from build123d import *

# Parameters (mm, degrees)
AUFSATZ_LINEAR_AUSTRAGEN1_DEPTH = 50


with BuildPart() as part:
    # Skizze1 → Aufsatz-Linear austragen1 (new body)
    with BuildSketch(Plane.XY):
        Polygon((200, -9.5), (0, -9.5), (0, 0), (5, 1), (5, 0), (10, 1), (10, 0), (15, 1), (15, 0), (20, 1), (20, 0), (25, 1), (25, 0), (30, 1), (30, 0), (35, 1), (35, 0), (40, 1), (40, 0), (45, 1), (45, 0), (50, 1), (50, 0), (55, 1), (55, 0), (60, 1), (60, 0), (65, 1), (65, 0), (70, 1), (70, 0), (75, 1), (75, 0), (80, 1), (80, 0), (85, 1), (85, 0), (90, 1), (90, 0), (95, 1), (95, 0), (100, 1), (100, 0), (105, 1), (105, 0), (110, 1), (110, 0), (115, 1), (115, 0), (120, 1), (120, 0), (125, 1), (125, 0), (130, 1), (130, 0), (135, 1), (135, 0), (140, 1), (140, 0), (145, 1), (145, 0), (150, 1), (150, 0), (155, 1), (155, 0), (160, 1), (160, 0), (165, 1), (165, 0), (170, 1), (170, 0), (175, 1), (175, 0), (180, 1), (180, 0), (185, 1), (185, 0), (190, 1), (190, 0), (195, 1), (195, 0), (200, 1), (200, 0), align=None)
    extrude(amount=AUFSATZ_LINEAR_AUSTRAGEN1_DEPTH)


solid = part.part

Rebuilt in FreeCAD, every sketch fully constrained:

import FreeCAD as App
import Part
import Sketcher

V = App.Vector
Q = App.Units.Quantity

doc = App.newDocument("Part")
body = doc.addObject("PartDesign::Body", "Body")

# Sketch on XY plane
sketch1 = body.newObject("Sketcher::SketchObject", "Sketch")
sketch1.AttachmentSupport = (doc.getObject("XY_Plane"), [""])
sketch1.MapMode = "FlatFace"
sketch1.addGeometry([
    Part.LineSegment(V(0, -9.5, 0), V(200, -9.5, 0)),  # 0
    Part.LineSegment(V(200, -9.5, 0), V(200, 1, 0)),  # 1
    Part.LineSegment(V(200, 1, 0), V(195, 0, 0)),  # 2
    Part.LineSegment(V(195, 0, 0), V(195, 1, 0)),  # 3
    Part.LineSegment(V(195, 1, 0), V(190, 0, 0)),  # 4
    Part.LineSegment(V(190, 0, 0), V(190, 1, 0)),  # 5
    Part.LineSegment(V(190, 1, 0), V(185, 0, 0)),  # 6
    Part.LineSegment(V(185, 0, 0), V(185, 1, 0)),  # 7
    Part.LineSegment(V(185, 1, 0), V(180, 0, 0)),  # 8
    Part.LineSegment(V(180, 0, 0), V(180, 1, 0)),  # 9
    Part.LineSegment(V(180, 1, 0), V(175, 0, 0)),  # 10
    Part.LineSegment(V(175, 0, 0), V(175, 1, 0)),  # 11
    Part.LineSegment(V(175, 1, 0), V(170, 0, 0)),  # 12
    Part.LineSegment(V(170, 0, 0), V(170, 1, 0)),  # 13
    Part.LineSegment(V(170, 1, 0), V(165, 0, 0)),  # 14
    Part.LineSegment(V(165, 0, 0), V(165, 1, 0)),  # 15
    Part.LineSegment(V(165, 1, 0), V(160, 0, 0)),  # 16
    Part.LineSegment(V(160, 0, 0), V(160, 1, 0)),  # 17
    Part.LineSegment(V(160, 1, 0), V(155, 0, 0)),  # 18
    Part.LineSegment(V(155, 0, 0), V(155, 1, 0)),  # 19
    Part.LineSegment(V(155, 1, 0), V(150, 0, 0)),  # 20
    Part.LineSegment(V(150, 0, 0), V(150, 1, 0)),  # 21
    Part.LineSegment(V(150, 1, 0), V(145, 0, 0)),  # 22
    Part.LineSegment(V(145, 0, 0), V(145, 1, 0)),  # 23
    Part.LineSegment(V(145, 1, 0), V(140, 0, 0)),  # 24
    Part.LineSegment(V(140, 0, 0), V(140, 1, 0)),  # 25
    Part.LineSegment(V(140, 1, 0), V(135, 0, 0)),  # 26
    Part.LineSegment(V(135, 0, 0), V(135, 1, 0)),  # 27
    Part.LineSegment(V(135, 1, 0), V(130, 0, 0)),  # 28
    Part.LineSegment(V(130, 0, 0), V(130, 1, 0)),  # 29
    Part.LineSegment(V(130, 1, 0), V(125, 0, 0)),  # 30
    Part.LineSegment(V(125, 0, 0), V(125, 1, 0)),  # 31
    Part.LineSegment(V(125, 1, 0), V(120, 0, 0)),  # 32
    Part.LineSegment(V(120, 0, 0), V(120, 1, 0)),  # 33
    Part.LineSegment(V(120, 1, 0), V(115, 0, 0)),  # 34
    Part.LineSegment(V(115, 0, 0), V(115, 1, 0)),  # 35
    Part.LineSegment(V(115, 1, 0), V(110, 0, 0)),  # 36
    Part.LineSegment(V(110, 0, 0), V(110, 1, 0)),  # 37
    Part.LineSegment(V(110, 1, 0), V(105, 0, 0)),  # 38
    Part.LineSegment(V(105, 0, 0), V(105, 1, 0)),  # 39
    Part.LineSegment(V(105, 1, 0), V(100, 0, 0)),  # 40
    Part.LineSegment(V(100, 0, 0), V(100, 1, 0)),  # 41
    Part.LineSegment(V(100, 1, 0), V(95, 0, 0)),  # 42
    Part.LineSegment(V(95, 0, 0), V(95, 1, 0)),  # 43
    Part.LineSegment(V(95, 1, 0), V(90, 0, 0)),  # 44
    Part.LineSegment(V(90, 0, 0), V(90, 1, 0)),  # 45
    Part.LineSegment(V(90, 1, 0), V(85, 0, 0)),  # 46
    Part.LineSegment(V(85, 0, 0), V(85, 1, 0)),  # 47
    Part.LineSegment(V(85, 1, 0), V(80, 0, 0)),  # 48
    Part.LineSegment(V(80, 0, 0), V(80, 1, 0)),  # 49
    Part.LineSegment(V(80, 1, 0), V(75, 0, 0)),  # 50
    Part.LineSegment(V(75, 0, 0), V(75, 1, 0)),  # 51
    Part.LineSegment(V(75, 1, 0), V(70, 0, 0)),  # 52
    Part.LineSegment(V(70, 0, 0), V(70, 1, 0)),  # 53
    Part.LineSegment(V(70, 1, 0), V(65, 0, 0)),  # 54
    Part.LineSegment(V(65, 0, 0), V(65, 1, 0)),  # 55
    Part.LineSegment(V(65, 1, 0), V(60, 0, 0)),  # 56
    Part.LineSegment(V(60, 0, 0), V(60, 1, 0)),  # 57
    Part.LineSegment(V(60, 1, 0), V(55, 0, 0)),  # 58
    Part.LineSegment(V(55, 0, 0), V(55, 1, 0)),  # 59
    Part.LineSegment(V(55, 1, 0), V(50, 0, 0)),  # 60
    Part.LineSegment(V(50, 0, 0), V(50, 1, 0)),  # 61
    Part.LineSegment(V(50, 1, 0), V(45, 0, 0)),  # 62
    Part.LineSegment(V(45, 0, 0), V(45, 1, 0)),  # 63
    Part.LineSegment(V(45, 1, 0), V(40, 0, 0)),  # 64
    Part.LineSegment(V(40, 0, 0), V(40, 1, 0)),  # 65
    Part.LineSegment(V(40, 1, 0), V(35, 0, 0)),  # 66
    Part.LineSegment(V(35, 0, 0), V(35, 1, 0)),  # 67
    Part.LineSegment(V(35, 1, 0), V(30, 0, 0)),  # 68
    Part.LineSegment(V(30, 0, 0), V(30, 1, 0)),  # 69
    Part.LineSegment(V(30, 1, 0), V(25, 0, 0)),  # 70
    Part.LineSegment(V(25, 0, 0), V(25, 1, 0)),  # 71
    Part.LineSegment(V(25, 1, 0), V(20, 0, 0)),  # 72
    Part.LineSegment(V(20, 0, 0), V(20, 1, 0)),  # 73
    Part.LineSegment(V(20, 1, 0), V(15, 0, 0)),  # 74
    Part.LineSegment(V(15, 0, 0), V(15, 1, 0)),  # 75
    Part.LineSegment(V(15, 1, 0), V(10, 0, 0)),  # 76
    Part.LineSegment(V(10, 0, 0), V(10, 1, 0)),  # 77
    Part.LineSegment(V(10, 1, 0), V(5, 0, 0)),  # 78
    Part.LineSegment(V(5, 0, 0), V(5, 1, 0)),  # 79
    Part.LineSegment(V(5, 1, 0), V(0, 0, 0)),  # 80
    Part.LineSegment(V(0, 0, 0), V(0, -9.5, 0)),  # 81
], False)
sketch1.addConstraint([
    Sketcher.Constraint("Coincident", 0, 2, 1, 1),
    Sketcher.Constraint("Coincident", 1, 2, 2, 1),
    Sketcher.Constraint("Coincident", 2, 2, 3, 1),
    Sketcher.Constraint("Coincident", 3, 2, 4, 1),
    Sketcher.Constraint("Coincident", 4, 2, 5, 1),
    Sketcher.Constraint("Coincident", 5, 2, 6, 1),
    Sketcher.Constraint("Coincident", 6, 2, 7, 1),
    Sketcher.Constraint("Coincident", 7, 2, 8, 1),
    Sketcher.Constraint("Coincident", 8, 2, 9, 1),
    Sketcher.Constraint("Coincident", 9, 2, 10, 1),
    Sketcher.Constraint("Coincident", 10, 2, 11, 1),
    Sketcher.Constraint("Coincident", 11, 2, 12, 1),
    Sketcher.Constraint("Coincident", 12, 2, 13, 1),
    Sketcher.Constraint("Coincident", 13, 2, 14, 1),
    Sketcher.Constraint("Coincident", 14, 2, 15, 1),
    Sketcher.Constraint("Coincident", 15, 2, 16, 1),
    Sketcher.Constraint("Coincident", 16, 2, 17, 1),
    Sketcher.Constraint("Coincident", 17, 2, 18, 1),
    Sketcher.Constraint("Coincident", 18, 2, 19, 1),
    Sketcher.Constraint("Coincident", 19, 2, 20, 1),
    Sketcher.Constraint("Coincident", 20, 2, 21, 1),
    Sketcher.Constraint("Coincident", 21, 2, 22, 1),
    Sketcher.Constraint("Coincident", 22, 2, 23, 1),
    Sketcher.Constraint("Coincident", 23, 2, 24, 1),
    Sketcher.Constraint("Coincident", 24, 2, 25, 1),
    Sketcher.Constraint("Coincident", 25, 2, 26, 1),
    Sketcher.Constraint("Coincident", 26, 2, 27, 1),
    Sketcher.Constraint("Coincident", 27, 2, 28, 1),
    Sketcher.Constraint("Coincident", 28, 2, 29, 1),
    Sketcher.Constraint("Coincident", 29, 2, 30, 1),
    Sketcher.Constraint("Coincident", 30, 2, 31, 1),
    Sketcher.Constraint("Coincident", 31, 2, 32, 1),
    Sketcher.Constraint("Coincident", 32, 2, 33, 1),
    Sketcher.Constraint("Coincident", 33, 2, 34, 1),
    Sketcher.Constraint("Coincident", 34, 2, 35, 1),
    Sketcher.Constraint("Coincident", 35, 2, 36, 1),
    Sketcher.Constraint("Coincident", 36, 2, 37, 1),
    Sketcher.Constraint("Coincident", 37, 2, 38, 1),
    Sketcher.Constraint("Coincident", 38, 2, 39, 1),
    Sketcher.Constraint("Coincident", 39, 2, 40, 1),
    Sketcher.Constraint("Coincident", 40, 2, 41, 1),
    Sketcher.Constraint("Coincident", 41, 2, 42, 1),
    Sketcher.Constraint("Coincident", 42, 2, 43, 1),
    Sketcher.Constraint("Coincident", 43, 2, 44, 1),
    Sketcher.Constraint("Coincident", 44, 2, 45, 1),
    Sketcher.Constraint("Coincident", 45, 2, 46, 1),
    Sketcher.Constraint("Coincident", 46, 2, 47, 1),
    Sketcher.Constraint("Coincident", 47, 2, 48, 1),
    Sketcher.Constraint("Coincident", 48, 2, 49, 1),
    Sketcher.Constraint("Coincident", 49, 2, 50, 1),
    Sketcher.Constraint("Coincident", 50, 2, 51, 1),
    Sketcher.Constraint("Coincident", 51, 2, 52, 1),
    Sketcher.Constraint("Coincident", 52, 2, 53, 1),
    Sketcher.Constraint("Coincident", 53, 2, 54, 1),
    Sketcher.Constraint("Coincident", 54, 2, 55, 1),
    Sketcher.Constraint("Coincident", 55, 2, 56, 1),
    Sketcher.Constraint("Coincident", 56, 2, 57, 1),
    Sketcher.Constraint("Coincident", 57, 2, 58, 1),
    Sketcher.Constraint("Coincident", 58, 2, 59, 1),
    Sketcher.Constraint("Coincident", 59, 2, 60, 1),
    Sketcher.Constraint("Coincident", 60, 2, 61, 1),
    Sketcher.Constraint("Coincident", 61, 2, 62, 1),
    Sketcher.Constraint("Coincident", 62, 2, 63, 1),
    Sketcher.Constraint("Coincident", 63, 2, 64, 1),
    Sketcher.Constraint("Coincident", 64, 2, 65, 1),
    Sketcher.Constraint("Coincident", 65, 2, 66, 1),
    Sketcher.Constraint("Coincident", 66, 2, 67, 1),
    Sketcher.Constraint("Coincident", 67, 2, 68, 1),
    Sketcher.Constraint("Coincident", 68, 2, 69, 1),
    Sketcher.Constraint("Coincident", 69, 2, 70, 1),
    Sketcher.Constraint("Coincident", 70, 2, 71, 1),
    Sketcher.Constraint("Coincident", 71, 2, 72, 1),
    Sketcher.Constraint("Coincident", 72, 2, 73, 1),
    Sketcher.Constraint("Coincident", 73, 2, 74, 1),
    Sketcher.Constraint("Coincident", 74, 2, 75, 1),
    Sketcher.Constraint("Coincident", 75, 2, 76, 1),
    Sketcher.Constraint("Coincident", 76, 2, 77, 1),
    Sketcher.Constraint("Coincident", 77, 2, 78, 1),
    Sketcher.Constraint("Coincident", 78, 2, 79, 1),
    Sketcher.Constraint("Coincident", 79, 2, 80, 1),
    Sketcher.Constraint("Coincident", 80, 2, 81, 1),
    Sketcher.Constraint("Coincident", 81, 2, 0, 1),
    Sketcher.Constraint("Horizontal", 0),
    Sketcher.Constraint("Vertical", 1),
    Sketcher.Constraint("Vertical", 3),
    Sketcher.Constraint("Vertical", 5),
    Sketcher.Constraint("Vertical", 7),
    Sketcher.Constraint("Vertical", 9),
    Sketcher.Constraint("Vertical", 11),
    Sketcher.Constraint("Vertical", 13),
    Sketcher.Constraint("Vertical", 15),
    Sketcher.Constraint("Vertical", 17),
    Sketcher.Constraint("Vertical", 19),
    Sketcher.Constraint("Vertical", 21),
    Sketcher.Constraint("Vertical", 23),
    Sketcher.Constraint("Vertical", 25),
    Sketcher.Constraint("Vertical", 27),
    Sketcher.Constraint("Vertical", 29),
    Sketcher.Constraint("Vertical", 31),
    Sketcher.Constraint("Vertical", 33),
    Sketcher.Constraint("Vertical", 35),
    Sketcher.Constraint("Vertical", 37),
    Sketcher.Constraint("Vertical", 39),
    Sketcher.Constraint("Vertical", 41),
    Sketcher.Constraint("Vertical", 43),
    Sketcher.Constraint("Vertical", 45),
    Sketcher.Constraint("Vertical", 47),
    Sketcher.Constraint("Vertical", 49),
    Sketcher.Constraint("Vertical", 51),
    Sketcher.Constraint("Vertical", 53),
    Sketcher.Constraint("Vertical", 55),
    Sketcher.Constraint("Vertical", 57),
    Sketcher.Constraint("Vertical", 59),
    Sketcher.Constraint("Vertical", 61),
    Sketcher.Constraint("Vertical", 63),
    Sketcher.Constraint("Vertical", 65),
    Sketcher.Constraint("Vertical", 67),
    Sketcher.Constraint("Vertical", 69),
    Sketcher.Constraint("Vertical", 71),
    Sketcher.Constraint("Vertical", 73),
    Sketcher.Constraint("Vertical", 75),
    Sketcher.Constraint("Vertical", 77),
    Sketcher.Constraint("Vertical", 79),
    Sketcher.Constraint("Vertical", 81),
    Sketcher.Constraint("Coincident", 80, 2, -1, 1),
    Sketcher.Constraint("PointOnObject", 2, 2, -1),
    Sketcher.Constraint("PointOnObject", 4, 2, -1),
    Sketcher.Constraint("PointOnObject", 6, 2, -1),
    Sketcher.Constraint("PointOnObject", 8, 2, -1),
    Sketcher.Constraint("PointOnObject", 10, 2, -1),
    Sketcher.Constraint("PointOnObject", 12, 2, -1),
    Sketcher.Constraint("PointOnObject", 14, 2, -1),
    Sketcher.Constraint("PointOnObject", 16, 2, -1),
    Sketcher.Constraint("PointOnObject", 18, 2, -1),
    Sketcher.Constraint("PointOnObject", 20, 2, -1),
    Sketcher.Constraint("PointOnObject", 22, 2, -1),
    Sketcher.Constraint("PointOnObject", 24, 2, -1),
    Sketcher.Constraint("PointOnObject", 26, 2, -1),
    Sketcher.Constraint("PointOnObject", 28, 2, -1),
    Sketcher.Constraint("PointOnObject", 30, 2, -1),
    Sketcher.Constraint("PointOnObject", 32, 2, -1),
    Sketcher.Constraint("PointOnObject", 34, 2, -1),
    Sketcher.Constraint("PointOnObject", 36, 2, -1),
    Sketcher.Constraint("PointOnObject", 38, 2, -1),
    Sketcher.Constraint("PointOnObject", 40, 2, -1),
    Sketcher.Constraint("PointOnObject", 42, 2, -1),
    Sketcher.Constraint("PointOnObject", 44, 2, -1),
    Sketcher.Constraint("PointOnObject", 46, 2, -1),
    Sketcher.Constraint("PointOnObject", 48, 2, -1),
    Sketcher.Constraint("PointOnObject", 50, 2, -1),
    Sketcher.Constraint("PointOnObject", 52, 2, -1),
    Sketcher.Constraint("PointOnObject", 54, 2, -1),
    Sketcher.Constraint("PointOnObject", 56, 2, -1),
    Sketcher.Constraint("PointOnObject", 58, 2, -1),
    Sketcher.Constraint("PointOnObject", 60, 2, -1),
    Sketcher.Constraint("PointOnObject", 62, 2, -1),
    Sketcher.Constraint("PointOnObject", 64, 2, -1),
    Sketcher.Constraint("PointOnObject", 66, 2, -1),
    Sketcher.Constraint("PointOnObject", 68, 2, -1),
    Sketcher.Constraint("PointOnObject", 70, 2, -1),
    Sketcher.Constraint("PointOnObject", 72, 2, -1),
    Sketcher.Constraint("PointOnObject", 74, 2, -1),
    Sketcher.Constraint("PointOnObject", 76, 2, -1),
    Sketcher.Constraint("PointOnObject", 78, 2, -1),
    Sketcher.Constraint("Parallel", 2, 4),
    Sketcher.Constraint("Parallel", 4, 6),
    Sketcher.Constraint("Parallel", 6, 8),
    Sketcher.Constraint("Parallel", 8, 10),
    Sketcher.Constraint("Parallel", 10, 12),
    Sketcher.Constraint("Parallel", 12, 14),
    Sketcher.Constraint("Parallel", 14, 16),
    Sketcher.Constraint("Parallel", 16, 18),
    Sketcher.Constraint("Parallel", 18, 20),
    Sketcher.Constraint("Parallel", 20, 22),
    Sketcher.Constraint("Parallel", 22, 24),
    Sketcher.Constraint("Parallel", 24, 26),
    Sketcher.Constraint("Parallel", 26, 28),
    Sketcher.Constraint("Parallel", 28, 30),
    Sketcher.Constraint("Parallel", 30, 32),
    Sketcher.Constraint("Parallel", 32, 34),
    Sketcher.Constraint("Parallel", 34, 36),
    Sketcher.Constraint("Parallel", 36, 38),
    Sketcher.Constraint("Parallel", 38, 40),
    Sketcher.Constraint("Parallel", 40, 42),
    Sketcher.Constraint("Parallel", 42, 44),
    Sketcher.Constraint("Parallel", 44, 46),
    Sketcher.Constraint("Parallel", 46, 48),
    Sketcher.Constraint("Parallel", 48, 50),
    Sketcher.Constraint("Parallel", 50, 52),
    Sketcher.Constraint("Parallel", 52, 54),
    Sketcher.Constraint("Parallel", 54, 56),
    Sketcher.Constraint("Parallel", 56, 58),
    Sketcher.Constraint("Parallel", 58, 60),
    Sketcher.Constraint("Parallel", 60, 62),
    Sketcher.Constraint("Parallel", 62, 64),
    Sketcher.Constraint("Parallel", 64, 66),
    Sketcher.Constraint("Parallel", 66, 68),
    Sketcher.Constraint("Parallel", 68, 70),
    Sketcher.Constraint("Parallel", 70, 72),
    Sketcher.Constraint("Parallel", 72, 74),
    Sketcher.Constraint("Parallel", 74, 76),
    Sketcher.Constraint("Parallel", 76, 78),
    Sketcher.Constraint("Parallel", 78, 80),
    Sketcher.Constraint("Horizontal", 1, 2, 3, 2),
    Sketcher.Constraint("Horizontal", 3, 2, 5, 2),
    Sketcher.Constraint("Horizontal", 5, 2, 7, 2),
    Sketcher.Constraint("Horizontal", 7, 2, 9, 2),
    Sketcher.Constraint("Horizontal", 9, 2, 11, 2),
    Sketcher.Constraint("Horizontal", 11, 2, 13, 2),
    Sketcher.Constraint("Horizontal", 13, 2, 15, 2),
    Sketcher.Constraint("Horizontal", 15, 2, 17, 2),
    Sketcher.Constraint("Horizontal", 17, 2, 19, 2),
    Sketcher.Constraint("Horizontal", 19, 2, 21, 2),
    Sketcher.Constraint("Horizontal", 21, 2, 23, 2),
    Sketcher.Constraint("Horizontal", 23, 2, 25, 2),
    Sketcher.Constraint("Horizontal", 25, 2, 27, 2),
    Sketcher.Constraint("Horizontal", 27, 2, 29, 2),
    Sketcher.Constraint("Horizontal", 29, 2, 31, 2),
    Sketcher.Constraint("Horizontal", 31, 2, 33, 2),
    Sketcher.Constraint("Horizontal", 33, 2, 35, 2),
    Sketcher.Constraint("Horizontal", 35, 2, 37, 2),
    Sketcher.Constraint("Horizontal", 37, 2, 39, 2),
    Sketcher.Constraint("Horizontal", 39, 2, 41, 2),
    Sketcher.Constraint("Horizontal", 41, 2, 43, 2),
    Sketcher.Constraint("Horizontal", 43, 2, 45, 2),
    Sketcher.Constraint("Horizontal", 45, 2, 47, 2),
    Sketcher.Constraint("Horizontal", 47, 2, 49, 2),
    Sketcher.Constraint("Horizontal", 49, 2, 51, 2),
    Sketcher.Constraint("Horizontal", 51, 2, 53, 2),
    Sketcher.Constraint("Horizontal", 53, 2, 55, 2),
    Sketcher.Constraint("Horizontal", 55, 2, 57, 2),
    Sketcher.Constraint("Horizontal", 57, 2, 59, 2),
    Sketcher.Constraint("Horizontal", 59, 2, 61, 2),
    Sketcher.Constraint("Horizontal", 61, 2, 63, 2),
    Sketcher.Constraint("Horizontal", 63, 2, 65, 2),
    Sketcher.Constraint("Horizontal", 65, 2, 67, 2),
    Sketcher.Constraint("Horizontal", 67, 2, 69, 2),
    Sketcher.Constraint("Horizontal", 69, 2, 71, 2),
    Sketcher.Constraint("Horizontal", 71, 2, 73, 2),
    Sketcher.Constraint("Horizontal", 73, 2, 75, 2),
    Sketcher.Constraint("Horizontal", 75, 2, 77, 2),
    Sketcher.Constraint("Horizontal", 77, 2, 79, 2),
    Sketcher.Constraint("DistanceX", 0, 1, 0, 2, Q("200 mm")),
    Sketcher.Constraint("DistanceY", 3, 1, 3, 2, Q("1 mm")),
    Sketcher.Constraint("DistanceY", 1, 1, 1, 2, Q("10.5 mm")),
])
pad1 = body.newObject("PartDesign::Pad", "Pad")
pad1.Profile = sketch1
pad1.Length = 50

doc.recompute()
